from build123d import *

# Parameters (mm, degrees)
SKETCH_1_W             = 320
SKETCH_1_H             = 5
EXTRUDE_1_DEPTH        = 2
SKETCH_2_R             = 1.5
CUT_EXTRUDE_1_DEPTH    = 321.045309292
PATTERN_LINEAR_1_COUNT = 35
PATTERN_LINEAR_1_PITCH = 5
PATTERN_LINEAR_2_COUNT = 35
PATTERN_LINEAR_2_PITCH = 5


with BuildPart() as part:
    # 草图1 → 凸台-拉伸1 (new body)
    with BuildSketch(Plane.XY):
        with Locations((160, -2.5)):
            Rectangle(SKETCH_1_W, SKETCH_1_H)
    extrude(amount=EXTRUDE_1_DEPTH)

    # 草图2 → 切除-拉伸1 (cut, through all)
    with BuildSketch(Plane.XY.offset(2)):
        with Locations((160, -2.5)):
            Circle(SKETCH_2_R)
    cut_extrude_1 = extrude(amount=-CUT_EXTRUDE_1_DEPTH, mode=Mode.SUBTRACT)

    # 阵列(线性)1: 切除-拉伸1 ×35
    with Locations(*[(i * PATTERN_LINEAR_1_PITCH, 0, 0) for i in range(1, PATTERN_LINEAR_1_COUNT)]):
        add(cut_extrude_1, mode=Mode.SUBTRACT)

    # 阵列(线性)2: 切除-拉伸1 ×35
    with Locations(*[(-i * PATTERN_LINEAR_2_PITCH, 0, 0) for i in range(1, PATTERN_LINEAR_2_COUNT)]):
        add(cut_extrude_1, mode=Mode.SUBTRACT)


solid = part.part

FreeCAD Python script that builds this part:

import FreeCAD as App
import Part
import Sketcher
from FreeCAD import Vector


def add_polygon(sketch, points):
    """Adds a closed chain of lines whose ends are joined by coincident constraints."""
    first, n = sketch.GeometryCount, len(points)
    for a, b in zip(points, points[1:] + points[:1]):
        sketch.addGeometry(Part.LineSegment(App.Vector(*a, 0), App.Vector(*b, 0)), False)
    for i in range(n):
        sketch.addConstraint(Sketcher.Constraint("Coincident", first + i, 2, first + (i + 1) % n, 1))

doc = App.newDocument("Part")
params = doc.addObject("Spreadsheet::Sheet", "Params")
for row, (alias, value) in enumerate([
    ("sketch1_width", "320 mm"),
    ("sketch1_height", "5 mm"),
    ("pad1_length", "2 mm"),
    ("sketch2_diameter", "3 mm"),
    ("linearpattern_pitch", "5 mm"),
    ("linearpattern2_pitch", "5 mm"),
], start=1):
    params.set(f"A{row}", alias)
    params.set(f"B{row}", "=" + value)
    params.setAlias(f"B{row}", alias)

body = doc.addObject("PartDesign::Body", "Body")

sketch1 = body.newObject("Sketcher::SketchObject", "Sketch")
sketch1.AttachmentSupport = (doc.getObject("XY_Plane"), [""])
sketch1.MapMode = "FlatFace"
add_polygon(sketch1, [(0, 0), (0, -5), (320, -5), (320, 0)])
sketch1.addConstraint([
    Sketcher.Constraint("Vertical", 0),
    Sketcher.Constraint("Horizontal", 1),
    Sketcher.Constraint("Vertical", 2),
    Sketcher.Constraint("Horizontal", 3),
    Sketcher.Constraint("Coincident", 3, 2, -1, 1),
    Sketcher.Constraint("DistanceX", 1, 1, 1, 2, 320.0),
    Sketcher.Constraint("DistanceY", 0, 2, 0, 1, 5.0),
])
sketch1.setExpression("Constraints[9]", "Params.sketch1_width")
sketch1.setExpression("Constraints[10]", "Params.sketch1_height")
pad1 = body.newObject("PartDesign::Pad", "Pad")
pad1.Profile = sketch1
pad1.setExpression("Length", "Params.pad1_length")

sketch2 = body.newObject("Sketcher::SketchObject", "Sketch001")
sketch2.AttachmentSupport = (doc.getObject("XY_Plane"), [""])
sketch2.MapMode = "FlatFace"
sketch2.AttachmentOffset = App.Placement(Vector(0, 0, 2), App.Rotation())
sketch2.addGeometry(Part.Circle(Vector(160, -2.5, 0), Vector(0, 0, 1), 1.5), False)
sketch2.addConstraint([
    Sketcher.Constraint("Diameter", 0, 3.0),
    Sketcher.Constraint("DistanceX", -1, 1, 0, 3, 160.0),
    Sketcher.Constraint("DistanceY", 0, 3, -1, 1, 2.5),
])
sketch2.setExpression("Constraints[0]", "Params.sketch2_diameter")
pocket1 = body.newObject("PartDesign::Pocket", "Pocket")
pocket1.Profile = sketch2
pocket1.Type = "ThroughAll"
doc.recompute()

linearpattern = body.newObject("PartDesign::LinearPattern", "LinearPattern")
linearpattern.Originals = [pocket1]
linearpattern.Direction = (doc.getObject("X_Axis"), [""])
linearpattern.Mode = "offset"
linearpattern.setExpression("Offset", "Params.linearpattern_pitch")
linearpattern.Occurrences = 35
body.Tip = linearpattern
doc.recompute()

linearpattern2 = body.newObject("PartDesign::LinearPattern", "LinearPattern001")
linearpattern2.Originals = [pocket1]
linearpattern2.Direction = (doc.getObject("X_Axis"), [""])
linearpattern2.Mode = "offset"
linearpattern2.setExpression("Offset", "Params.linearpattern2_pitch")
linearpattern2.Occurrences = 35
linearpattern2.Reversed = True
body.Tip = linearpattern2

doc.recompute()
